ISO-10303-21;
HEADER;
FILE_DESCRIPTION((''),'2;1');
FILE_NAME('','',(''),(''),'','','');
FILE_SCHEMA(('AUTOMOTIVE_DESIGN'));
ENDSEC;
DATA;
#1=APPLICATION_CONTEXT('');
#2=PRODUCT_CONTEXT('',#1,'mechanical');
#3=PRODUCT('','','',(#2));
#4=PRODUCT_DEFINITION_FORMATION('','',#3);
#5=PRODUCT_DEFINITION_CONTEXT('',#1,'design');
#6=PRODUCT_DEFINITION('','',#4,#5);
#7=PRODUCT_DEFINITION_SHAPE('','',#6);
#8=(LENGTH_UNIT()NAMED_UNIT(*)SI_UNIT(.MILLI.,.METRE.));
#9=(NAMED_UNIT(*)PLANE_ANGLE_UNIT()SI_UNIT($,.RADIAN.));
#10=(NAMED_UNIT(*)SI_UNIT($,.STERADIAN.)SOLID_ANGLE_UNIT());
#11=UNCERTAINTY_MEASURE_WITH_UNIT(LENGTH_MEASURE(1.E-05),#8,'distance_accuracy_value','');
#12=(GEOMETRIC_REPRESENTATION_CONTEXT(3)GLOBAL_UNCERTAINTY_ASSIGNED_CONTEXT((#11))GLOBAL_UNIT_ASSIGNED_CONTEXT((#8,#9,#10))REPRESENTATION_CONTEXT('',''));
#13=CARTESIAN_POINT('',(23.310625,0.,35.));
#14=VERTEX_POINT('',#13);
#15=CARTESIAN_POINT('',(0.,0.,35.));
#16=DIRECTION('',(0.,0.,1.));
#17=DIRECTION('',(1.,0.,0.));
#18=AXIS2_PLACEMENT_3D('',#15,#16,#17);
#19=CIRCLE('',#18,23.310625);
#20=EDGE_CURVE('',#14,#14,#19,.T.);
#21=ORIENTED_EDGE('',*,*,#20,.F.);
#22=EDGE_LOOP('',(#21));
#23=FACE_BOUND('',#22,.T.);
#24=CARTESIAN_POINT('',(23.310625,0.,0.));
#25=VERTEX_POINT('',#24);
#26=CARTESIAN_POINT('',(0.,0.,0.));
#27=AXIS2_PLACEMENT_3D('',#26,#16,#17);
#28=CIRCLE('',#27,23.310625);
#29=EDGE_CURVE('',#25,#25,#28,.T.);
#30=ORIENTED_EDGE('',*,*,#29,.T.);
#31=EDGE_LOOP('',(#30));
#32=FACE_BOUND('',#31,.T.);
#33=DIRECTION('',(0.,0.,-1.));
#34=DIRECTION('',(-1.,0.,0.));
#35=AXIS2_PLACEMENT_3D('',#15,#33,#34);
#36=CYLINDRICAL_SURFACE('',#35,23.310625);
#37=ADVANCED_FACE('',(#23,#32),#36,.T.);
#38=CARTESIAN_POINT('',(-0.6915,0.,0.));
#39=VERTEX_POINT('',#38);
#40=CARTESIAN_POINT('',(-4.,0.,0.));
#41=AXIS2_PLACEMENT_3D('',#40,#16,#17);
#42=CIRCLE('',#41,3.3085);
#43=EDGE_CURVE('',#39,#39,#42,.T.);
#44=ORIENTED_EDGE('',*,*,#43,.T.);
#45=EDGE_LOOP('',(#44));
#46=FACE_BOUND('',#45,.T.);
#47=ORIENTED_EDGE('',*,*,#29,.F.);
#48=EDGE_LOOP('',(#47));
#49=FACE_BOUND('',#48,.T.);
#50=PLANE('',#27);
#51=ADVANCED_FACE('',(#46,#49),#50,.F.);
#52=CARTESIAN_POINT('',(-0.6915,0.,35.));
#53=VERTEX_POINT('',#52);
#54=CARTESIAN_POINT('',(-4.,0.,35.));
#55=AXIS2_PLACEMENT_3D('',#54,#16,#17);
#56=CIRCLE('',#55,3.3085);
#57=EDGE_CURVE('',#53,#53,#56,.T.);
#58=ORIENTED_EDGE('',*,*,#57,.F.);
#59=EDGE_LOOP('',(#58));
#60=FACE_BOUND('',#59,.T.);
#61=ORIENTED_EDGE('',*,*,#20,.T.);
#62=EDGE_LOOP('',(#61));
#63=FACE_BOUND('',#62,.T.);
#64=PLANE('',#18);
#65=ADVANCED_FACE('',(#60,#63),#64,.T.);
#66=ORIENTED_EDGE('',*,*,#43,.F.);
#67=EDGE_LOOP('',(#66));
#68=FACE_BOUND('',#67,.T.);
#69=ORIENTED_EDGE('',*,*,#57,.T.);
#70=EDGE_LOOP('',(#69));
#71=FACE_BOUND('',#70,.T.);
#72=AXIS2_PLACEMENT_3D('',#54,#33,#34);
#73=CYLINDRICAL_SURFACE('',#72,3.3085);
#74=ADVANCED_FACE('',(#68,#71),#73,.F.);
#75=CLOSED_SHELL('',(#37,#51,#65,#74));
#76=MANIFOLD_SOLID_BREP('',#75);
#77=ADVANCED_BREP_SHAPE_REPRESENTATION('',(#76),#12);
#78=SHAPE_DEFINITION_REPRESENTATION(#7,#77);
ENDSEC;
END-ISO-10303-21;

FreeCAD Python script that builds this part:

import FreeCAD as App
import Part
import Sketcher
from FreeCAD import Vector
Q = App.Units.Quantity

doc = App.newDocument("Part")
body = doc.addObject("PartDesign::Body", "Body")

# Sketch on XY plane
sketch1 = body.newObject("Sketcher::SketchObject", "Sketch")
sketch1.AttachmentSupport = (doc.getObject("XY_Plane"), [""])
sketch1.MapMode = "FlatFace"
sketch1.addGeometry(Part.Circle(Vector(0, 0, 0), Vector(0, 0, 1), 23.3), False)
sketch1.addGeometry(Part.Circle(Vector(-4, 0, 0), Vector(0, 0, 1), 3.3), False)
sketch1.addConstraint(Sketcher.Constraint("Coincident", 0, 3, -1, 1))
sketch1.addConstraint(Sketcher.Constraint("PointOnObject", 1, 3, -1))
sketch1.addConstraint(Sketcher.Constraint("Diameter", 1, Q("6.617 mm")))
sketch1.addConstraint(Sketcher.Constraint("DistanceX", 1, 3, -1, 1, Q("4 mm")))
sketch1.addConstraint(Sketcher.Constraint("Diameter", 0, Q("46.62125 mm")))
pad1 = body.newObject("PartDesign::Pad", "Pad")
pad1.Profile = sketch1
pad1.Length = 35

doc.recompute()
